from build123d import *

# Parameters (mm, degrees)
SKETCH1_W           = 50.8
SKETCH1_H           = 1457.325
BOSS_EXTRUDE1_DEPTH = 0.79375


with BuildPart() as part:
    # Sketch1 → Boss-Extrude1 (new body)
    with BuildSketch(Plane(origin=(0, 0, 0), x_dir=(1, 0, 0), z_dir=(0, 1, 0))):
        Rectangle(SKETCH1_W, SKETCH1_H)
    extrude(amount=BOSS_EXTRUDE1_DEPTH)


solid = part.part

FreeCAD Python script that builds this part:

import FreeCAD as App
import Part
import Sketcher
Q = App.Units.Quantity


def add_polygon(sketch, points):
    """Adds a closed chain of lines whose ends are joined by coincident constraints."""
    first, n = sketch.GeometryCount, len(points)
    for a, b in zip(points, points[1:] + points[:1]):
        sketch.addGeometry(Part.LineSegment(App.Vector(*a, 0), App.Vector(*b, 0)), False)
    for i in range(n):
        sketch.addConstraint(Sketcher.Constraint("Coincident", first + i, 2, first + (i + 1) % n, 1))

doc = App.newDocument("Part")
body = doc.addObject("PartDesign::Body", "Body")

# Sketch on XZ plane
sketch1 = body.newObject("Sketcher::SketchObject", "Sketch")
sketch1.AttachmentSupport = (doc.getObject("XZ_Plane"), [""])
sketch1.MapMode = "FlatFace"
add_polygon(sketch1, [(-25, -729), (-25, 729), (25, 729), (25, -729)])  # lines 0-3
sketch1.addConstraint([
    Sketcher.Constraint("Vertical", 0),
    Sketcher.Constraint("Horizontal", 1),
    Sketcher.Constraint("Vertical", 2),
    Sketcher.Constraint("Horizontal", 3),
    Sketcher.Constraint("Symmetric", 0, 2, 2, 2, -1, 1),
    Sketcher.Constraint("DistanceX", 1, 1, 1, 2, Q("2 in")),
    Sketcher.Constraint("DistanceY", 0, 1, 0, 2, Q("57.375 in")),
])
pad1 = body.newObject("PartDesign::Pad", "Pad")
pad1.Profile = sketch1
pad1.Length = Q("0.03125 in")
pad1.Reversed = True

doc.recompute()
